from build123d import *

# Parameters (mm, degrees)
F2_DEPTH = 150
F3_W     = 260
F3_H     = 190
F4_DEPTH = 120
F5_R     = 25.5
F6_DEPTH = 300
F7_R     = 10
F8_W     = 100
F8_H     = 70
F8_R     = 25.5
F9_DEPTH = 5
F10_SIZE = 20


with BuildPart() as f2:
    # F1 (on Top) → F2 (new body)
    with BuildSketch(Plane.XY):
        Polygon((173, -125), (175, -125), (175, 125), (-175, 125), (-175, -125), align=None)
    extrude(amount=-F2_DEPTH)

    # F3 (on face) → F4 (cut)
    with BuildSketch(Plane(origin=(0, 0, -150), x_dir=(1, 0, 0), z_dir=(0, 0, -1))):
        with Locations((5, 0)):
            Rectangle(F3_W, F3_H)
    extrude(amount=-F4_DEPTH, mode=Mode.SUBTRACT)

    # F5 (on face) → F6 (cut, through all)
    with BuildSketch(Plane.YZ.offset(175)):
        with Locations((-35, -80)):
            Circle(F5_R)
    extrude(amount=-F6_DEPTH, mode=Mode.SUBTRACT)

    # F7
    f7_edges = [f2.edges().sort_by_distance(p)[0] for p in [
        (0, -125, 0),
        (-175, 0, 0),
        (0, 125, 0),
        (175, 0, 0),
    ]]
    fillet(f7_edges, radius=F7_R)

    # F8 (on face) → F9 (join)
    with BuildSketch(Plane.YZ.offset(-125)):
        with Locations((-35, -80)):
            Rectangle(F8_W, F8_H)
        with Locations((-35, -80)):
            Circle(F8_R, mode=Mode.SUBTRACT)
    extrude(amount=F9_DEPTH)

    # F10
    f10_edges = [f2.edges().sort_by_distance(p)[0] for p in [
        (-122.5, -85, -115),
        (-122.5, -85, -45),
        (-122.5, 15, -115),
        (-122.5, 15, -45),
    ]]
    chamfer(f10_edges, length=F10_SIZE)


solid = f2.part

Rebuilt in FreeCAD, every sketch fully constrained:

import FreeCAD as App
import Part
import Sketcher
from FreeCAD import Vector
Q = App.Units.Quantity


def edges_at(feature, points):
    """Names of the edges that pass closest to the given points."""
    edges = feature.Shape.Edges
    near = lambda p: min(range(len(edges)), key=lambda i: edges[i].distToShape(Part.Vertex(*p))[0])
    return sorted({f"Edge{near(p) + 1}" for p in points})

doc = App.newDocument("Part")
params = doc.addObject("Spreadsheet::Sheet", "Params")
for row, (alias, value) in enumerate([
    ("sketch1_width", "350 mm"),
    ("sketch1_height", "250 mm"),
    ("pad1_length", "150 mm"),
    ("sketch2_width", "260 mm"),
    ("sketch2_height", "190 mm"),
    ("pocket1_length", "120 mm"),
    ("sketch3_diameter", "51 mm"),
    ("pocket2_length", "300 mm"),
    ("fillet_radius", "10 mm"),
    ("sketch4_diameter", "51 mm"),
    ("sketch4_width", "100 mm"),
    ("sketch4_height", "70 mm"),
    ("pad2_length", "5 mm"),
    ("chamfer_size", "20 mm"),
], start=1):
    params.set(f"A{row}", alias)
    params.set(f"B{row}", "=" + value)
    params.setAlias(f"B{row}", alias)

body = doc.addObject("PartDesign::Body", "Body")

sketch1 = body.newObject("Sketcher::SketchObject", "Sketch")
sketch1.AttachmentSupport = (doc.getObject("XY_Plane"), [""])
sketch1.MapMode = "FlatFace"
sketch1.addGeometry([
    Part.LineSegment(Vector(175, -125, 0), Vector(175, 125, 0)),
    Part.LineSegment(Vector(175, 125, 0), Vector(-175, 125, 0)),
    Part.LineSegment(Vector(-175, 125, 0), Vector(-175, -125, 0)),
    Part.LineSegment(Vector(-175, -125, 0), Vector(175, -125, 0)),
], False)
sketch1.addConstraint([
    Sketcher.Constraint("Coincident", 0, 2, 1, 1),
    Sketcher.Constraint("Coincident", 1, 2, 2, 1),
    Sketcher.Constraint("Coincident", 2, 2, 3, 1),
    Sketcher.Constraint("Coincident", 3, 2, 0, 1),
    Sketcher.Constraint("Vertical", 0),
    Sketcher.Constraint("Horizontal", 1),
    Sketcher.Constraint("Vertical", 2),
    Sketcher.Constraint("Horizontal", 3),
    Sketcher.Constraint("Symmetric", 0, 2, 2, 2, -1, 1),
    Sketcher.Constraint("DistanceX", 1, 2, 1, 1, Q("350 mm")),
    Sketcher.Constraint("DistanceY", 0, 1, 0, 2, Q("250 mm")),
])
sketch1.setExpression("Constraints[9]", "Params.sketch1_width")
sketch1.setExpression("Constraints[10]", "Params.sketch1_height")
pad1 = body.newObject("PartDesign::Pad", "Pad")
pad1.Profile = sketch1
pad1.setExpression("Length", "Params.pad1_length")
pad1.Reversed = True

sketch2 = body.newObject("Sketcher::SketchObject", "Sketch001")
sketch2.AttachmentSupport = (doc.getObject("XY_Plane"), [""])
sketch2.MapMode = "FlatFace"
sketch2.AttachmentOffset = App.Placement(Vector(0, 0, -150), App.Rotation())
sketch2.addGeometry([
    Part.LineSegment(Vector(-125, -95, 0), Vector(-125, 95, 0)),
    Part.LineSegment(Vector(-125, 95, 0), Vector(135, 95, 0)),
    Part.LineSegment(Vector(135, 95, 0), Vector(135, -95, 0)),
    Part.LineSegment(Vector(135, -95, 0), Vector(-125, -95, 0)),
], False)
sketch2.addConstraint([
    Sketcher.Constraint("Coincident", 0, 2, 1, 1),
    Sketcher.Constraint("Coincident", 1, 2, 2, 1),
    Sketcher.Constraint("Coincident", 2, 2, 3, 1),
    Sketcher.Constraint("Coincident", 3, 2, 0, 1),
    Sketcher.Constraint("Vertical", 0),
    Sketcher.Constraint("Horizontal", 1),
    Sketcher.Constraint("Vertical", 2),
    Sketcher.Constraint("Horizontal", 3),
    Sketcher.Constraint("DistanceX", 1, 1, 1, 2, Q("260 mm")),
    Sketcher.Constraint("DistanceY", 0, 1, 0, 2, Q("190 mm")),
    Sketcher.Constraint("DistanceX", 0, 2, -1, 1, Q("125 mm")),
    Sketcher.Constraint("DistanceY", -1, 1, 0, 2, Q("95 mm")),
])
sketch2.setExpression("Constraints[8]", "Params.sketch2_width")
sketch2.setExpression("Constraints[9]", "Params.sketch2_height")
pocket1 = body.newObject("PartDesign::Pocket", "Pocket")
pocket1.Profile = sketch2
pocket1.setExpression("Length", "Params.pocket1_length")
pocket1.Reversed = True

sketch3 = body.newObject("Sketcher::SketchObject", "Sketch002")
sketch3.AttachmentSupport = (doc.getObject("YZ_Plane"), [""])
sketch3.MapMode = "FlatFace"
sketch3.AttachmentOffset = App.Placement(Vector(0, 0, 175), App.Rotation())
sketch3.addGeometry(Part.Circle(Vector(-35, -80, 0), Vector(0, 0, 1), 25.5), False)
sketch3.addConstraint([
    Sketcher.Constraint("Diameter", 0, Q("51 mm")),
    Sketcher.Constraint("DistanceX", 0, 3, -1, 1, Q("35 mm")),
    Sketcher.Constraint("DistanceY", 0, 3, -1, 1, Q("80 mm")),
])
sketch3.setExpression("Constraints[0]", "Params.sketch3_diameter")
pocket2 = body.newObject("PartDesign::Pocket", "Pocket001")
pocket2.Profile = sketch3
pocket2.setExpression("Length", "Params.pocket2_length")
doc.recompute()

fillet = body.newObject("PartDesign::Fillet", "Fillet")
fillet.Base = (pocket2, edges_at(pocket2, [
    (0, -125, 0),
    (-175, 0, 0),
    (0, 125, 0),
    (175, 0, 0),
]))
fillet.setExpression("Radius", "Params.fillet_radius")

sketch4 = body.newObject("Sketcher::SketchObject", "Sketch003")
sketch4.AttachmentSupport = (doc.getObject("YZ_Plane"), [""])
sketch4.MapMode = "FlatFace"
sketch4.AttachmentOffset = App.Placement(Vector(0, 0, -125), App.Rotation())
sketch4.addGeometry([
    Part.LineSegment(Vector(-85, -45, 0), Vector(-85, -115, 0)),
    Part.LineSegment(Vector(-85, -115, 0), Vector(15, -115, 0)),
    Part.LineSegment(Vector(15, -115, 0), Vector(15, -45, 0)),
    Part.LineSegment(Vector(15, -45, 0), Vector(-85, -45, 0)),
    Part.Circle(Vector(-35, -80, 0), Vector(0, 0, 1), 25.5),
], False)
sketch4.addConstraint([
    Sketcher.Constraint("Coincident", 0, 2, 1, 1),
    Sketcher.Constraint("Coincident", 1, 2, 2, 1),
    Sketcher.Constraint("Coincident", 2, 2, 3, 1),
    Sketcher.Constraint("Coincident", 3, 2, 0, 1),
    Sketcher.Constraint("Vertical", 0),
    Sketcher.Constraint("Horizontal", 1),
    Sketcher.Constraint("Vertical", 2),
    Sketcher.Constraint("Horizontal", 3),
    Sketcher.Constraint("Diameter", 4, Q("51 mm")),
    Sketcher.Constraint("DistanceX", 1, 1, 1, 2, Q("100 mm")),
    Sketcher.Constraint("DistanceY", 0, 2, 0, 1, Q("70 mm")),
    Sketcher.Constraint("DistanceX", 4, 3, -1, 1, Q("35 mm")),
    Sketcher.Constraint("DistanceY", 4, 3, -1, 1, Q("80 mm")),
    Sketcher.Constraint("DistanceX", 0, 2, -1, 1, Q("85 mm")),
    Sketcher.Constraint("DistanceY", 0, 2, -1, 1, Q("115 mm")),
])
sketch4.setExpression("Constraints[8]", "Params.sketch4_diameter")
sketch4.setExpression("Constraints[9]", "Params.sketch4_width")
sketch4.setExpression("Constraints[10]", "Params.sketch4_height")
pad2 = body.newObject("PartDesign::Pad", "Pad001")
pad2.Profile = sketch4
pad2.setExpression("Length", "Params.pad2_length")
doc.recompute()

chamfer = body.newObject("PartDesign::Chamfer", "Chamfer")
chamfer.Base = (pad2, edges_at(pad2, [
    (-122.5, -85, -115),
    (-122.5, -85, -45),
    (-122.5, 15, -115),
    (-122.5, 15, -45),
]))
chamfer.setExpression("Size", "Params.chamfer_size")

doc.recompute()
